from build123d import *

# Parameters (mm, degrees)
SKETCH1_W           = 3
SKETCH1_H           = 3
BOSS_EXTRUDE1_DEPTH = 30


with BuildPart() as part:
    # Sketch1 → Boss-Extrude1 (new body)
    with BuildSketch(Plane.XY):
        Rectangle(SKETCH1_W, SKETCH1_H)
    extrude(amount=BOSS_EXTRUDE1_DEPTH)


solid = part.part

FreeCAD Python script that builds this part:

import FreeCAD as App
import Part
import Sketcher


def add_polygon(sketch, points):
    """Adds a closed chain of lines whose ends are joined by coincident constraints."""
    first, n = sketch.GeometryCount, len(points)
    for a, b in zip(points, points[1:] + points[:1]):
        sketch.addGeometry(Part.LineSegment(App.Vector(*a, 0), App.Vector(*b, 0)), False)
    for i in range(n):
        sketch.addConstraint(Sketcher.Constraint("Coincident", first + i, 2, first + (i + 1) % n, 1))

doc = App.newDocument("Part")
body = doc.addObject("PartDesign::Body", "Body")

sketch1 = body.newObject("Sketcher::SketchObject", "Sketch")
sketch1.AttachmentSupport = (doc.getObject("XY_Plane"), [""])
sketch1.MapMode = "FlatFace"
add_polygon(sketch1, [(-1.5, 1.5), (-1.5, -1.5), (1.5, -1.5), (1.5, 1.5)])
sketch1.addConstraint([
    Sketcher.Constraint("Vertical", 0),
    Sketcher.Constraint("Horizontal", 1),
    Sketcher.Constraint("Vertical", 2),
    Sketcher.Constraint("Horizontal", 3),
    Sketcher.Constraint("Symmetric", 0, 2, 2, 2, -1, 1),
    Sketcher.Constraint("Equal", 3, 0),
    Sketcher.Constraint("DistanceX", 1, 1, 1, 2, 3.0),
])
pad1 = body.newObject("PartDesign::Pad", "Pad")
pad1.Profile = sketch1
pad1.Length = 30

doc.recompute()
